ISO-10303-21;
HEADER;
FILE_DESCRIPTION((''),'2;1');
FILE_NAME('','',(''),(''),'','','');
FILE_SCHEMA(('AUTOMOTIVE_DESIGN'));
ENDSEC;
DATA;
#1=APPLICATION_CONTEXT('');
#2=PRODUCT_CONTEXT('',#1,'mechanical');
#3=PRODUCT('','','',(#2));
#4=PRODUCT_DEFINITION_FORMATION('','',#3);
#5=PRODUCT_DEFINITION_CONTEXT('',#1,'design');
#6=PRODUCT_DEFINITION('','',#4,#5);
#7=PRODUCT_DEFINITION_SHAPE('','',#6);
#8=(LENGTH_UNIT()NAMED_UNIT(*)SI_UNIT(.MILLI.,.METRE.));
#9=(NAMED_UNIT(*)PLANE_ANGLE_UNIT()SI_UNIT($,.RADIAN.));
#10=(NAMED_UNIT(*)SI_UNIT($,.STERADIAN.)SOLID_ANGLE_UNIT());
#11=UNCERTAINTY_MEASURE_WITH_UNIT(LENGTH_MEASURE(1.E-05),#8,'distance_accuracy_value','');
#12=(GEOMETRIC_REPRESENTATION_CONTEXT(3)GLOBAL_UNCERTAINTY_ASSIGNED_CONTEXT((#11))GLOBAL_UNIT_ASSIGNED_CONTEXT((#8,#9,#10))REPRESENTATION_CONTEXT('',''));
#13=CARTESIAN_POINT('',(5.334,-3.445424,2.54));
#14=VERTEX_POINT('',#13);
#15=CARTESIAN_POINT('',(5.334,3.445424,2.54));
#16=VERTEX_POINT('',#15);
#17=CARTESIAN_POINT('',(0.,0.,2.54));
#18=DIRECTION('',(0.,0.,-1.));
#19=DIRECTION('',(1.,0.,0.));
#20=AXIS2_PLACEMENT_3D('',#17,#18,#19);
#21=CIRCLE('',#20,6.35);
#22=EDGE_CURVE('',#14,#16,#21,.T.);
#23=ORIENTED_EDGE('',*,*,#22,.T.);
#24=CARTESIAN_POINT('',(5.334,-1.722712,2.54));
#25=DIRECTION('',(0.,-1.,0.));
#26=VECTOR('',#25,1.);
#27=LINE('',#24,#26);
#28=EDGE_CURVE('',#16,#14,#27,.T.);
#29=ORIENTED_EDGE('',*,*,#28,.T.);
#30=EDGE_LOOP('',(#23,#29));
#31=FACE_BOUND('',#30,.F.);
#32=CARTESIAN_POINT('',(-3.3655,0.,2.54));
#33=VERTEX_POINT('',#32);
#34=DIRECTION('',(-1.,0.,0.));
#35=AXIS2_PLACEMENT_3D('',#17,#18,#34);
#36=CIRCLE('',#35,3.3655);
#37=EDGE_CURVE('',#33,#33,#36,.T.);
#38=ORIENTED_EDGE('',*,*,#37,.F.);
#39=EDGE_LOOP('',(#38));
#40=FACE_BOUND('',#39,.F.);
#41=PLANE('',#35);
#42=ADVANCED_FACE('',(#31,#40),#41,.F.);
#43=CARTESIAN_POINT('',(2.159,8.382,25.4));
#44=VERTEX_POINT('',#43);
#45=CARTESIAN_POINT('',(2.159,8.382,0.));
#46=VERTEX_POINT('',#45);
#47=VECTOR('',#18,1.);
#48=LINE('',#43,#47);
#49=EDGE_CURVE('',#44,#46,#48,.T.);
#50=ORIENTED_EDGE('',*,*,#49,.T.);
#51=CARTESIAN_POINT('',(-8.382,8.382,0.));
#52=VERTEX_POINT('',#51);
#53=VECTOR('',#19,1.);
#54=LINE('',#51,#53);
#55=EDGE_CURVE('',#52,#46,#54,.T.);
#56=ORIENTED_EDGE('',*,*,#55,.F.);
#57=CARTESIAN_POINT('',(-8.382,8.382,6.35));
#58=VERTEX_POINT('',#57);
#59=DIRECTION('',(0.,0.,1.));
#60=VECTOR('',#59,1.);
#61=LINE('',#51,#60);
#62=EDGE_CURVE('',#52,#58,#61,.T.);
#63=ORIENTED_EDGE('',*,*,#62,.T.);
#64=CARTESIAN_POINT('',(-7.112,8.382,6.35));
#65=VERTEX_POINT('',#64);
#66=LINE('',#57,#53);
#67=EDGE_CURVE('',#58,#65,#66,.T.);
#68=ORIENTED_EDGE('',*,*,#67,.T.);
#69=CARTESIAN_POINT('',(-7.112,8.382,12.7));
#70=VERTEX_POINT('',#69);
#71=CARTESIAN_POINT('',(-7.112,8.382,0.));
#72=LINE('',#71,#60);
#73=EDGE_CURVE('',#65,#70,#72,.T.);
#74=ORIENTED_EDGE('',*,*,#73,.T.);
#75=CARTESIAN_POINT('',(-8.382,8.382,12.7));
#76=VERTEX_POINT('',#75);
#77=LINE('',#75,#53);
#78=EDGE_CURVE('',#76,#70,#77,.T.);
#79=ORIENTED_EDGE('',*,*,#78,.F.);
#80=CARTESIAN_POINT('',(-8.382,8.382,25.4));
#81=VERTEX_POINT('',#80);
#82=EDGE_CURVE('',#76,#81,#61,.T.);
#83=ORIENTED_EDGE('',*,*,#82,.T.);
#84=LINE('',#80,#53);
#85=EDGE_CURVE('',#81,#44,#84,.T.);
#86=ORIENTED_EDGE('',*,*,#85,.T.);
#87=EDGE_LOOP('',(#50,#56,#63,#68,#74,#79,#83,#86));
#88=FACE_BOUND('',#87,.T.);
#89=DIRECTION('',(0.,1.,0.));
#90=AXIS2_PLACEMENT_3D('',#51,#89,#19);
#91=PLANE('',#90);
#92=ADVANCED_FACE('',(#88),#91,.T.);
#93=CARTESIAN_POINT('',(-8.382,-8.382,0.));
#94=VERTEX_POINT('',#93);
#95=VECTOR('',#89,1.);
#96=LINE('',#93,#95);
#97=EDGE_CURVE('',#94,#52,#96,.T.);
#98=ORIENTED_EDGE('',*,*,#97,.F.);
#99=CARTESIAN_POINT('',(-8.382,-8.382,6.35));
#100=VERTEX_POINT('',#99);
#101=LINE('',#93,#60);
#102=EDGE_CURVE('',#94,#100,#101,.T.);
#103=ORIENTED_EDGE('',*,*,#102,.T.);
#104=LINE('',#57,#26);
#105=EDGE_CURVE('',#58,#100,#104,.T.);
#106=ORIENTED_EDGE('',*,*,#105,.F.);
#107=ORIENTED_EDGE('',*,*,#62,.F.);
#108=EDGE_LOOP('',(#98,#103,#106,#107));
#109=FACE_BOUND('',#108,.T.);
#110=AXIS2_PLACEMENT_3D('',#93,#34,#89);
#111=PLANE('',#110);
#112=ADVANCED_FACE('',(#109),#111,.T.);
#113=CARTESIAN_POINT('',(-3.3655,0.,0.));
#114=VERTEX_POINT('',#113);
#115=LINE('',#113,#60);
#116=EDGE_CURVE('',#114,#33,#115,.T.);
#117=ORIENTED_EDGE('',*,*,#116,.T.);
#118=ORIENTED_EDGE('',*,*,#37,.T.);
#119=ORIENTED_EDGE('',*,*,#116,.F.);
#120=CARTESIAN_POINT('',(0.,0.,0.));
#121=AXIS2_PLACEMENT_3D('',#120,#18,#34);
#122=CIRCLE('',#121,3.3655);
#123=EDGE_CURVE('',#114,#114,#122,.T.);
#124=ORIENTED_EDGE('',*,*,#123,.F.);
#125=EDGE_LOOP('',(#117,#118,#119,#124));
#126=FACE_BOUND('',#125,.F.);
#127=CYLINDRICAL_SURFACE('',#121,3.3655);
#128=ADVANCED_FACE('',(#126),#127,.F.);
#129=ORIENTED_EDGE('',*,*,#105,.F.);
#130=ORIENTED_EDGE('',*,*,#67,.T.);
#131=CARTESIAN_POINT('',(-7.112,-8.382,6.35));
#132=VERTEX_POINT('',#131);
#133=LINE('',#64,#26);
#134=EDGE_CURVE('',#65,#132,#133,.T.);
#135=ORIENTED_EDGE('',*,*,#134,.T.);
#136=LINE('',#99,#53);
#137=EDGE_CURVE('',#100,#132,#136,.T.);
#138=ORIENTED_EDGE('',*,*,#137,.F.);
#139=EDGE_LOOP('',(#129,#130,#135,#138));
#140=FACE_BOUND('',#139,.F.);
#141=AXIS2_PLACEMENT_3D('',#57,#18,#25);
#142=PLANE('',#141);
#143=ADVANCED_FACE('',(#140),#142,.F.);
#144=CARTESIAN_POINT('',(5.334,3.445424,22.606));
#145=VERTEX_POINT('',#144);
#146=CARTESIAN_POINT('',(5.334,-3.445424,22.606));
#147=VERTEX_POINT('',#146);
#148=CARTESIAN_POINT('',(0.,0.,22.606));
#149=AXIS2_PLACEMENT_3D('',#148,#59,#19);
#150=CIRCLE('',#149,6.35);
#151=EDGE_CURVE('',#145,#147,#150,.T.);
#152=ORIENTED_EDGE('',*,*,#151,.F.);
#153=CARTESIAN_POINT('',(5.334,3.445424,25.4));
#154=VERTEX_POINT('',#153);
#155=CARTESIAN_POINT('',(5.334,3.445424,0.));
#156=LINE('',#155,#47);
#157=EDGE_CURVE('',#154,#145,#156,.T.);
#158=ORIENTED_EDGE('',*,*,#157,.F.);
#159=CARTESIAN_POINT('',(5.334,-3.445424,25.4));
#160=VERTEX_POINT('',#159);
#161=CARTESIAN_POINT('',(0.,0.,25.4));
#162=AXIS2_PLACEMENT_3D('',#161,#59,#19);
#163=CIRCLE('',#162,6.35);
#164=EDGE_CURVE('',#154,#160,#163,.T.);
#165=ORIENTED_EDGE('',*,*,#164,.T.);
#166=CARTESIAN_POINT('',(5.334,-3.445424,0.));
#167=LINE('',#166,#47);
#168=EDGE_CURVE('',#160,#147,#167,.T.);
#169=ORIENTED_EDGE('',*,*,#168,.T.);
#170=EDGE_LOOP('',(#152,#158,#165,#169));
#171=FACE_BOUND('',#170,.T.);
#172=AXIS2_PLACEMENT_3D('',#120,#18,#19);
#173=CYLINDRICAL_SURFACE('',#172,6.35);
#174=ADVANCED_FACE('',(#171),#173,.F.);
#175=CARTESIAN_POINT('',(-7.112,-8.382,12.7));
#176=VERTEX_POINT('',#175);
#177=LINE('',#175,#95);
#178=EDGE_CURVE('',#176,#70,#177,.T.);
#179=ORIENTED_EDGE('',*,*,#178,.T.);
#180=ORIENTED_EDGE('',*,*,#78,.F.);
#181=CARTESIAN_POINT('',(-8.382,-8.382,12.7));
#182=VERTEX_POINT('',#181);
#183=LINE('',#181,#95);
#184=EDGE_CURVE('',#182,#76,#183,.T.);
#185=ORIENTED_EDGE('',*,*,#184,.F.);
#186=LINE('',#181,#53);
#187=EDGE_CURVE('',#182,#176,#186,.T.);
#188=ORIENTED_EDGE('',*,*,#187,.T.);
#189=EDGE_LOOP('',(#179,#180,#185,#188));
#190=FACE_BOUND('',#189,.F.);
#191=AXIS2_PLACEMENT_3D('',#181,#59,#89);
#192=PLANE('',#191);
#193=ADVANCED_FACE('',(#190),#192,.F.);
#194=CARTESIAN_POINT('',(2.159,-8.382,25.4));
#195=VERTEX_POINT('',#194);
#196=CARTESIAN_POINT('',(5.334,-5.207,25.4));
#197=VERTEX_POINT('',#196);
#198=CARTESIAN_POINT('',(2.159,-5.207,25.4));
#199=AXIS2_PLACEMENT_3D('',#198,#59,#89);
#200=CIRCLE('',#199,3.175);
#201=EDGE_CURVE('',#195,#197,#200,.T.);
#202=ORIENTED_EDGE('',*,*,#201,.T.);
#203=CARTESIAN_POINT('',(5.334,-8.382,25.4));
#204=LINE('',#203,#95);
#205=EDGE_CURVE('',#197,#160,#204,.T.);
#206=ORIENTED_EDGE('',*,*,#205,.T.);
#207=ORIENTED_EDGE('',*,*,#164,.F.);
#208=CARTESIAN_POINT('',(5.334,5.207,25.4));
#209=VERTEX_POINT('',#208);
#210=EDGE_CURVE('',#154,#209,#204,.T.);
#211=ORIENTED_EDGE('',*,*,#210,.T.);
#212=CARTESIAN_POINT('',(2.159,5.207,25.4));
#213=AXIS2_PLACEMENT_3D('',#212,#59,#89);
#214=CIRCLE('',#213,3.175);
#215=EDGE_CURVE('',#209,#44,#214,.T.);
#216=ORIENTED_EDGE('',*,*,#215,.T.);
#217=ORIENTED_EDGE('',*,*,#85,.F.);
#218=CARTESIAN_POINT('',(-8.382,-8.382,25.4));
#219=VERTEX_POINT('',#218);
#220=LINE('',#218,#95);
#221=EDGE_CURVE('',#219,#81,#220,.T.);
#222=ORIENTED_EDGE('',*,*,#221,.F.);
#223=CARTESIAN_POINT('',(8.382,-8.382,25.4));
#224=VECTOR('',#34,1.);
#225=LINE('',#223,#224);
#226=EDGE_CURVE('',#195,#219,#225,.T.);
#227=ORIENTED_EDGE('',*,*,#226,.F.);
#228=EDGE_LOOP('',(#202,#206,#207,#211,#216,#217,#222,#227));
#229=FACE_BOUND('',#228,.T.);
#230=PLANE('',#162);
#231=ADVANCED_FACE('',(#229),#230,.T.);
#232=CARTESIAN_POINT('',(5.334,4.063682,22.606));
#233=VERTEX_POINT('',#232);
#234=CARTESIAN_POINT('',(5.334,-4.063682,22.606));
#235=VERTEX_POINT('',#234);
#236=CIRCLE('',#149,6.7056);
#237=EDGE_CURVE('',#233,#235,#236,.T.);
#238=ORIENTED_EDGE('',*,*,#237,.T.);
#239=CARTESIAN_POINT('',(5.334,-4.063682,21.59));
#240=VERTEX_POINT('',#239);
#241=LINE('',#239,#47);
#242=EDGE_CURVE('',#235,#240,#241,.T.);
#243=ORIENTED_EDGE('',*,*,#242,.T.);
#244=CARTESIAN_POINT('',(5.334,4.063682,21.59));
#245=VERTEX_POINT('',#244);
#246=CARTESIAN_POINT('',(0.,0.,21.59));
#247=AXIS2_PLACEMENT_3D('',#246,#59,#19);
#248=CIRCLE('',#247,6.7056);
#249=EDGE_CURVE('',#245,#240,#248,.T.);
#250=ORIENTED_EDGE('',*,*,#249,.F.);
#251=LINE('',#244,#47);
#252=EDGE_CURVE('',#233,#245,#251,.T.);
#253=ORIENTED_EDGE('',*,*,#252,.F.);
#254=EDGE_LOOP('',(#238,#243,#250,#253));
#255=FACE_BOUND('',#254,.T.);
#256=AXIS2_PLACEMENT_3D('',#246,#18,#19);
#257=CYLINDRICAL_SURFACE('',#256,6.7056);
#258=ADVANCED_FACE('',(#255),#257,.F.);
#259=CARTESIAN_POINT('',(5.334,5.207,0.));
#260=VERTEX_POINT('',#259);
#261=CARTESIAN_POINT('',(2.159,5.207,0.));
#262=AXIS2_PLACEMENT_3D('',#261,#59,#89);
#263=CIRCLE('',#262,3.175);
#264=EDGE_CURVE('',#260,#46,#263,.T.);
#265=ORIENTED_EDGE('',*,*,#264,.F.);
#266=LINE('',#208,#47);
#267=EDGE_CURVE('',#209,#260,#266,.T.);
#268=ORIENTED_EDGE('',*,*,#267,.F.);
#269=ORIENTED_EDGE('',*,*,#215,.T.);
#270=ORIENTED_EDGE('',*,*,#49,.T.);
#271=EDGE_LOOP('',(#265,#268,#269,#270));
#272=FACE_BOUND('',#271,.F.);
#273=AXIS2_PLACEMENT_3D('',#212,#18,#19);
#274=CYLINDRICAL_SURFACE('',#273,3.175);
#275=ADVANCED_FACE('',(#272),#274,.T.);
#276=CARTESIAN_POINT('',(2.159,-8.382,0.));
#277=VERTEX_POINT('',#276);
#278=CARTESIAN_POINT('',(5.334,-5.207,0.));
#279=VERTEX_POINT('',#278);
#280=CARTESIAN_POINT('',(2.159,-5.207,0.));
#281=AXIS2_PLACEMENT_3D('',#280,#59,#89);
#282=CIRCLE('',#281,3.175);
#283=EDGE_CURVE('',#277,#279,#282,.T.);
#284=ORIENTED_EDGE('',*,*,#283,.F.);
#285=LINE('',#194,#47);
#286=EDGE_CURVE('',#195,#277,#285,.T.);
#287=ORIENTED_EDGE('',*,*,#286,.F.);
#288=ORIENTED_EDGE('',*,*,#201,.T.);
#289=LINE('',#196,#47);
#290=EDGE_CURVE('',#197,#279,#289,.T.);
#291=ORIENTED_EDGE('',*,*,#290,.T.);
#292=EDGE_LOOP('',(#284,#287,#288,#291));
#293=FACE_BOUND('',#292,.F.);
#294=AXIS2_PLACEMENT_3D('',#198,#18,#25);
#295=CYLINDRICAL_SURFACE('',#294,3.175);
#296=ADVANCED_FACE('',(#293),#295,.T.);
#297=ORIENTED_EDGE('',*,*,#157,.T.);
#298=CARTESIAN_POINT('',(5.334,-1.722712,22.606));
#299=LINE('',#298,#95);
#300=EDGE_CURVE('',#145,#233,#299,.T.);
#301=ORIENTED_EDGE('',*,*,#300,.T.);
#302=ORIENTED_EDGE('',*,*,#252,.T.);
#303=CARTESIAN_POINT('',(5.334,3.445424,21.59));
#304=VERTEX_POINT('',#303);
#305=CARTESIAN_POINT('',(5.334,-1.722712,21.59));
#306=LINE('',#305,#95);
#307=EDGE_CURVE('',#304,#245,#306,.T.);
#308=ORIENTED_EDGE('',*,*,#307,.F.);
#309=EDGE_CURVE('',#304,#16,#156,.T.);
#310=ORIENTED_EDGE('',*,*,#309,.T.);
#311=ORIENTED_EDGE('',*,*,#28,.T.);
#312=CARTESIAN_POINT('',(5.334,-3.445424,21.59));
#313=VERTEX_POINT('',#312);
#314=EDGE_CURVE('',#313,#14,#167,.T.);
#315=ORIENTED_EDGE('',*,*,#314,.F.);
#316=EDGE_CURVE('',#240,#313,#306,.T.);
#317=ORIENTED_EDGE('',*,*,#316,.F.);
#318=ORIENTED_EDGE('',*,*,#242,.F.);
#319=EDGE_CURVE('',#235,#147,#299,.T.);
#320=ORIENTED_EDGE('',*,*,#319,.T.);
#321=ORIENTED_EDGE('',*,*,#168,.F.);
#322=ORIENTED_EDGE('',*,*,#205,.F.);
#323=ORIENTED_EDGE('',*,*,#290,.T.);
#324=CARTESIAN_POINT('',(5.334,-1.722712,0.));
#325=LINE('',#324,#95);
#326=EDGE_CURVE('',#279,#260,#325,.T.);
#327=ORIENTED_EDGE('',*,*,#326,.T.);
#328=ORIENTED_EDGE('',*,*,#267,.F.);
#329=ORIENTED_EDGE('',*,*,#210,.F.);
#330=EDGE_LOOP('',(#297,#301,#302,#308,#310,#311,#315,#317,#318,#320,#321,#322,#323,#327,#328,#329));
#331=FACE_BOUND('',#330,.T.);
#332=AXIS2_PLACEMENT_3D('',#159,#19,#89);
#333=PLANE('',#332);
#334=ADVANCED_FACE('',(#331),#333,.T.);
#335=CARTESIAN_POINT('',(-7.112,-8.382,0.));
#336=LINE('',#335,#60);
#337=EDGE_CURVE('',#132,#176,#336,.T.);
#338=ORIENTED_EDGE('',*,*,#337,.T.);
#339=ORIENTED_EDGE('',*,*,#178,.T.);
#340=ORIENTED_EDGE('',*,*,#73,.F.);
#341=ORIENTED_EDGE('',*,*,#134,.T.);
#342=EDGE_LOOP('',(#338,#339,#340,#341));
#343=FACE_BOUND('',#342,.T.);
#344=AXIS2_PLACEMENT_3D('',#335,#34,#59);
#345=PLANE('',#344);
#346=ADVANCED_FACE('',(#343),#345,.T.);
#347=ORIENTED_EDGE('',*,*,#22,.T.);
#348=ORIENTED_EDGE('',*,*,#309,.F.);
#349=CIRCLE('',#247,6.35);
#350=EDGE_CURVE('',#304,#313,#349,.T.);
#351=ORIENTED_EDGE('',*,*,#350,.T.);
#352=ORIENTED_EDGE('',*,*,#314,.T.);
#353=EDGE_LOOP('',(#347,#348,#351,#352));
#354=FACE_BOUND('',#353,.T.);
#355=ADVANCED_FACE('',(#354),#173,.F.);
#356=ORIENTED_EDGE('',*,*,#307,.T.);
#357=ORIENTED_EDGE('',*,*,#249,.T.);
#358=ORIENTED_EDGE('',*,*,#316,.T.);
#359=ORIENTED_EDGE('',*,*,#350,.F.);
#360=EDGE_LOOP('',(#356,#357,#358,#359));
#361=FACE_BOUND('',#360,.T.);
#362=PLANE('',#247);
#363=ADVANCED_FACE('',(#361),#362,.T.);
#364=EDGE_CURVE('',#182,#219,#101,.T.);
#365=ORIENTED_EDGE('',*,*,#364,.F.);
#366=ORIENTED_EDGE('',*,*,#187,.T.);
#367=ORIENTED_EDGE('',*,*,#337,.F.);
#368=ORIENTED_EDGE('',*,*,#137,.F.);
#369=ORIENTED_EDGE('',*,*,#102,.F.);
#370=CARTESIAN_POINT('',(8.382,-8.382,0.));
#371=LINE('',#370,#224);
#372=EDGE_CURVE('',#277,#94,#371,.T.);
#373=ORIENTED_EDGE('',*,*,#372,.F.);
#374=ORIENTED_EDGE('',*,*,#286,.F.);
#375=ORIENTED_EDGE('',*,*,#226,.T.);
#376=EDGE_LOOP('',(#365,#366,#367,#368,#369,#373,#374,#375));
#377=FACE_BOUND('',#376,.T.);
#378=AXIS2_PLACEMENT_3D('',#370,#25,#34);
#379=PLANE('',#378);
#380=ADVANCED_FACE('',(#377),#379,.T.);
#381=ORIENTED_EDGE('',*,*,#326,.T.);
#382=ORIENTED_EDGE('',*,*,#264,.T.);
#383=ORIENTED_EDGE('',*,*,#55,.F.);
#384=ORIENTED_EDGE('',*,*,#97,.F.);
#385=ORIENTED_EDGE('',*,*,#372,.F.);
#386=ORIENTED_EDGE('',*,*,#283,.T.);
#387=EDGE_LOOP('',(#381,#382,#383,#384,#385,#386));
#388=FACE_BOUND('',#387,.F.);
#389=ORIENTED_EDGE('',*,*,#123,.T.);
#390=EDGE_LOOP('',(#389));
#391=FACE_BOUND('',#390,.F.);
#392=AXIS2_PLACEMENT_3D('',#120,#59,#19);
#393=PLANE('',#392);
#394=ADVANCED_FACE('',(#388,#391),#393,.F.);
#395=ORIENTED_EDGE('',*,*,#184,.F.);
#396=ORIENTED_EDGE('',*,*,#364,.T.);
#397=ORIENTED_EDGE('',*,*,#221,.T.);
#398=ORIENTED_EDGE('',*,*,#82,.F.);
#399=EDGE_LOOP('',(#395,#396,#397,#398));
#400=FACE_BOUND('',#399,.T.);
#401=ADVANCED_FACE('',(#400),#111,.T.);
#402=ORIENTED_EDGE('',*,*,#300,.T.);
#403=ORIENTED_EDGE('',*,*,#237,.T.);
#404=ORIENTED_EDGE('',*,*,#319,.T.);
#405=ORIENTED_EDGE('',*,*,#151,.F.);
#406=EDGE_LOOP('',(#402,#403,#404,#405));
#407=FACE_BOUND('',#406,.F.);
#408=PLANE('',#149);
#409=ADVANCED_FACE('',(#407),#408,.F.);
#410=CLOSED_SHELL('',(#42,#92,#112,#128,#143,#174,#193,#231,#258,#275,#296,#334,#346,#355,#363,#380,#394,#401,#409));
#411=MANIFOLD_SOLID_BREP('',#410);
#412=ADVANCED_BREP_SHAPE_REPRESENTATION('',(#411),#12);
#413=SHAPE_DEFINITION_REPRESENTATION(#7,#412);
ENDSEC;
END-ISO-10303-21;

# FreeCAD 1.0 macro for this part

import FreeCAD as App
import Part
import Sketcher

V = App.Vector
Q = App.Units.Quantity


def edges_at(feature, points):
    """Names of the edges that pass closest to the given points."""
    edges = feature.Shape.Edges
    near = lambda p: min(range(len(edges)), key=lambda i: edges[i].distToShape(Part.Vertex(*p))[0])
    return sorted({f"Edge{near(p) + 1}" for p in points})

doc = App.newDocument("Part")
body = doc.addObject("PartDesign::Body", "Body")

sketch1 = doc.addObject("Sketcher::SketchObject", "Sketch")
body.addObject(sketch1)
sketch1.AttachmentSupport = (doc.XY_Plane, [""])
sketch1.MapMode = "FlatFace"
sketch1.addGeometry([
    Part.LineSegment(V(-8, -8, 0), V(8, -8, 0)),
    Part.LineSegment(V(8, -8, 0), V(8, 8, 0)),
    Part.LineSegment(V(8, 8, 0), V(-8, 8, 0)),
    Part.LineSegment(V(-8, 8, 0), V(-8, -8, 0)),
    Part.Circle(V(0, 0, 0), V(0, 0, 1), 6),
], False)
sketch1.addConstraint([
    Sketcher.Constraint("Coincident", 0, 2, 1, 1),
    Sketcher.Constraint("Coincident", 1, 2, 2, 1),
    Sketcher.Constraint("Coincident", 2, 2, 3, 1),
    Sketcher.Constraint("Coincident", 3, 2, 0, 1),
    Sketcher.Constraint("Horizontal", 0),
    Sketcher.Constraint("Vertical", 1),
    Sketcher.Constraint("Horizontal", 2),
    Sketcher.Constraint("Vertical", 3),
    Sketcher.Constraint("Coincident", 4, 3, -1, 1),
    Sketcher.Constraint("Symmetric", 0, 2, 2, 2, -1, 1),
    Sketcher.Constraint("Equal", 2, 1),
    Sketcher.Constraint("Diameter", 4, Q("0.5 in")),
    Sketcher.Constraint("DistanceX", 0, 1, 0, 2, Q("0.66 in")),
])
pad1 = doc.addObject("PartDesign::Pad", "Pad")
body.addObject(pad1)
pad1.Profile = sketch1
pad1.Length = Q("1 in")

sketch2 = doc.addObject("Sketcher::SketchObject", "Sketch001")
body.addObject(sketch2)
sketch2.AttachmentSupport = (doc.XY_Plane, [""])
sketch2.MapMode = "FlatFace"
sketch2.addGeometry([
    Part.Circle(V(0, 0, 0), V(0, 0, 1), 6.3),
    Part.Circle(V(0, 0, 0), V(0, 0, 1), 3.4),
], False)
sketch2.addConstraint([
    Sketcher.Constraint("Coincident", 0, 3, -1, 1),
    Sketcher.Constraint("Coincident", 1, 3, -1, 1),
    Sketcher.Constraint("Diameter", 1, Q("0.265 in")),
    Sketcher.Constraint("Diameter", 0, Q("0.5 in")),
])
pad2 = doc.addObject("PartDesign::Pad", "Pad001")
body.addObject(pad2)
pad2.Profile = sketch2
pad2.Length = Q("0.1 in")

sketch3 = doc.addObject("Sketcher::SketchObject", "Sketch002")
body.addObject(sketch3)
sketch3.AttachmentSupport = (doc.XY_Plane, [""])
sketch3.MapMode = "FlatFace"
sketch3.AttachmentOffset = App.Placement(V(0, 0, 0.85 * 25.4), App.Rotation())
sketch3.addGeometry([
    Part.Circle(V(0, 0, 0), V(0, 0, 1), 7),
    Part.Circle(V(0, 0, 0), V(0, 0, 1), 6),
], False)
sketch3.addConstraint([
    Sketcher.Constraint("Coincident", 0, 3, -1, 1),
    Sketcher.Constraint("Coincident", 1, 3, -1, 1),
    Sketcher.Constraint("Diameter", 1, Q("0.5 in")),
    Sketcher.Constraint("Diameter", 0, Q("0.528 in")),
])
pocket1 = doc.addObject("PartDesign::Pocket", "Pocket")
body.addObject(pocket1)
pocket1.Profile = sketch3
pocket1.Length = Q("0.04 in")
pocket1.Reversed = True

sketch4 = doc.addObject("Sketcher::SketchObject", "Sketch003")
body.addObject(sketch4)
sketch4.AttachmentSupport = (doc.YZ_Plane, [""])
sketch4.MapMode = "FlatFace"
sketch4.AttachmentOffset = App.Placement(V(0, 0, -0.33 * 25.4), App.Rotation())
sketch4.addGeometry([
    Part.LineSegment(V(8, 6, 0), V(-8, 6, 0)),
    Part.LineSegment(V(-8, 6, 0), V(-8, 13, 0)),
    Part.LineSegment(V(-8, 13, 0), V(8, 13, 0)),
    Part.LineSegment(V(8, 13, 0), V(8, 6, 0)),
], False)
sketch4.addConstraint([
    Sketcher.Constraint("Coincident", 0, 2, 1, 1),
    Sketcher.Constraint("Coincident", 1, 2, 2, 1),
    Sketcher.Constraint("Coincident", 2, 2, 3, 1),
    Sketcher.Constraint("Coincident", 3, 2, 0, 1),
    Sketcher.Constraint("Horizontal", 0),
    Sketcher.Constraint("Vertical", 1),
    Sketcher.Constraint("Horizontal", 2),
    Sketcher.Constraint("Vertical", 3),
    Sketcher.Constraint("DistanceY", 1, 1, 1, 2, Q("0.25 in")),
    Sketcher.Constraint("DistanceY", -1, 1, 0, 2, Q("0.25 in")),
    Sketcher.Constraint("DistanceX", 0, 2, 0, 1, Q("0.66 in")),
    Sketcher.Constraint("DistanceX", 0, 2, -1, 1, Q("0.33 in")),
])
pocket2 = doc.addObject("PartDesign::Pocket", "Pocket001")
body.addObject(pocket2)
pocket2.Profile = sketch4
pocket2.Length = Q("0.05 in")
pocket2.Reversed = True

sketch5 = doc.addObject("Sketcher::SketchObject", "Sketch004")
body.addObject(sketch5)
sketch5.AttachmentSupport = (doc.XY_Plane, [""])
sketch5.MapMode = "FlatFace"
sketch5.AttachmentOffset = App.Placement(V(0, 0, 1 * 25.4), App.Rotation())
sketch5.addGeometry([
    Part.LineSegment(V(5.3, -8.4, 0), V(8.4, -8.4, 0)),
    Part.LineSegment(V(8.4, -8.4, 0), V(8.4, 8.4, 0)),
    Part.LineSegment(V(8.4, 8.4, 0), V(5.3, 8.4, 0)),
    Part.LineSegment(V(5.3, 8.4, 0), V(5.3, -8.4, 0)),
], False)
sketch5.addConstraint([
    Sketcher.Constraint("Coincident", 0, 2, 1, 1),
    Sketcher.Constraint("Coincident", 1, 2, 2, 1),
    Sketcher.Constraint("Coincident", 2, 2, 3, 1),
    Sketcher.Constraint("Coincident", 3, 2, 0, 1),
    Sketcher.Constraint("Horizontal", 0),
    Sketcher.Constraint("Vertical", 1),
    Sketcher.Constraint("Horizontal", 2),
    Sketcher.Constraint("Vertical", 3),
    Sketcher.Constraint("DistanceX", 0, 1, 0, 2, Q("0.12 in")),
    Sketcher.Constraint("DistanceY", 1, 1, 1, 2, Q("0.66 in")),
    Sketcher.Constraint("DistanceX", -1, 1, 0, 2, Q("0.33 in")),
    Sketcher.Constraint("DistanceY", 0, 2, -1, 1, Q("0.33 in")),
])
pocket3 = doc.addObject("PartDesign::Pocket", "Pocket002")
body.addObject(pocket3)
pocket3.Profile = sketch5
pocket3.Type = "ThroughAll"
doc.recompute()

fillet = doc.addObject("PartDesign::Fillet", "Fillet")
body.addObject(fillet)
fillet.Base = (pocket3, edges_at(pocket3, [(5.334, -8.382, 12.7), (5.334, 8.382, 12.7)]))
fillet.Radius = Q("0.125 in")

doc.recompute()
